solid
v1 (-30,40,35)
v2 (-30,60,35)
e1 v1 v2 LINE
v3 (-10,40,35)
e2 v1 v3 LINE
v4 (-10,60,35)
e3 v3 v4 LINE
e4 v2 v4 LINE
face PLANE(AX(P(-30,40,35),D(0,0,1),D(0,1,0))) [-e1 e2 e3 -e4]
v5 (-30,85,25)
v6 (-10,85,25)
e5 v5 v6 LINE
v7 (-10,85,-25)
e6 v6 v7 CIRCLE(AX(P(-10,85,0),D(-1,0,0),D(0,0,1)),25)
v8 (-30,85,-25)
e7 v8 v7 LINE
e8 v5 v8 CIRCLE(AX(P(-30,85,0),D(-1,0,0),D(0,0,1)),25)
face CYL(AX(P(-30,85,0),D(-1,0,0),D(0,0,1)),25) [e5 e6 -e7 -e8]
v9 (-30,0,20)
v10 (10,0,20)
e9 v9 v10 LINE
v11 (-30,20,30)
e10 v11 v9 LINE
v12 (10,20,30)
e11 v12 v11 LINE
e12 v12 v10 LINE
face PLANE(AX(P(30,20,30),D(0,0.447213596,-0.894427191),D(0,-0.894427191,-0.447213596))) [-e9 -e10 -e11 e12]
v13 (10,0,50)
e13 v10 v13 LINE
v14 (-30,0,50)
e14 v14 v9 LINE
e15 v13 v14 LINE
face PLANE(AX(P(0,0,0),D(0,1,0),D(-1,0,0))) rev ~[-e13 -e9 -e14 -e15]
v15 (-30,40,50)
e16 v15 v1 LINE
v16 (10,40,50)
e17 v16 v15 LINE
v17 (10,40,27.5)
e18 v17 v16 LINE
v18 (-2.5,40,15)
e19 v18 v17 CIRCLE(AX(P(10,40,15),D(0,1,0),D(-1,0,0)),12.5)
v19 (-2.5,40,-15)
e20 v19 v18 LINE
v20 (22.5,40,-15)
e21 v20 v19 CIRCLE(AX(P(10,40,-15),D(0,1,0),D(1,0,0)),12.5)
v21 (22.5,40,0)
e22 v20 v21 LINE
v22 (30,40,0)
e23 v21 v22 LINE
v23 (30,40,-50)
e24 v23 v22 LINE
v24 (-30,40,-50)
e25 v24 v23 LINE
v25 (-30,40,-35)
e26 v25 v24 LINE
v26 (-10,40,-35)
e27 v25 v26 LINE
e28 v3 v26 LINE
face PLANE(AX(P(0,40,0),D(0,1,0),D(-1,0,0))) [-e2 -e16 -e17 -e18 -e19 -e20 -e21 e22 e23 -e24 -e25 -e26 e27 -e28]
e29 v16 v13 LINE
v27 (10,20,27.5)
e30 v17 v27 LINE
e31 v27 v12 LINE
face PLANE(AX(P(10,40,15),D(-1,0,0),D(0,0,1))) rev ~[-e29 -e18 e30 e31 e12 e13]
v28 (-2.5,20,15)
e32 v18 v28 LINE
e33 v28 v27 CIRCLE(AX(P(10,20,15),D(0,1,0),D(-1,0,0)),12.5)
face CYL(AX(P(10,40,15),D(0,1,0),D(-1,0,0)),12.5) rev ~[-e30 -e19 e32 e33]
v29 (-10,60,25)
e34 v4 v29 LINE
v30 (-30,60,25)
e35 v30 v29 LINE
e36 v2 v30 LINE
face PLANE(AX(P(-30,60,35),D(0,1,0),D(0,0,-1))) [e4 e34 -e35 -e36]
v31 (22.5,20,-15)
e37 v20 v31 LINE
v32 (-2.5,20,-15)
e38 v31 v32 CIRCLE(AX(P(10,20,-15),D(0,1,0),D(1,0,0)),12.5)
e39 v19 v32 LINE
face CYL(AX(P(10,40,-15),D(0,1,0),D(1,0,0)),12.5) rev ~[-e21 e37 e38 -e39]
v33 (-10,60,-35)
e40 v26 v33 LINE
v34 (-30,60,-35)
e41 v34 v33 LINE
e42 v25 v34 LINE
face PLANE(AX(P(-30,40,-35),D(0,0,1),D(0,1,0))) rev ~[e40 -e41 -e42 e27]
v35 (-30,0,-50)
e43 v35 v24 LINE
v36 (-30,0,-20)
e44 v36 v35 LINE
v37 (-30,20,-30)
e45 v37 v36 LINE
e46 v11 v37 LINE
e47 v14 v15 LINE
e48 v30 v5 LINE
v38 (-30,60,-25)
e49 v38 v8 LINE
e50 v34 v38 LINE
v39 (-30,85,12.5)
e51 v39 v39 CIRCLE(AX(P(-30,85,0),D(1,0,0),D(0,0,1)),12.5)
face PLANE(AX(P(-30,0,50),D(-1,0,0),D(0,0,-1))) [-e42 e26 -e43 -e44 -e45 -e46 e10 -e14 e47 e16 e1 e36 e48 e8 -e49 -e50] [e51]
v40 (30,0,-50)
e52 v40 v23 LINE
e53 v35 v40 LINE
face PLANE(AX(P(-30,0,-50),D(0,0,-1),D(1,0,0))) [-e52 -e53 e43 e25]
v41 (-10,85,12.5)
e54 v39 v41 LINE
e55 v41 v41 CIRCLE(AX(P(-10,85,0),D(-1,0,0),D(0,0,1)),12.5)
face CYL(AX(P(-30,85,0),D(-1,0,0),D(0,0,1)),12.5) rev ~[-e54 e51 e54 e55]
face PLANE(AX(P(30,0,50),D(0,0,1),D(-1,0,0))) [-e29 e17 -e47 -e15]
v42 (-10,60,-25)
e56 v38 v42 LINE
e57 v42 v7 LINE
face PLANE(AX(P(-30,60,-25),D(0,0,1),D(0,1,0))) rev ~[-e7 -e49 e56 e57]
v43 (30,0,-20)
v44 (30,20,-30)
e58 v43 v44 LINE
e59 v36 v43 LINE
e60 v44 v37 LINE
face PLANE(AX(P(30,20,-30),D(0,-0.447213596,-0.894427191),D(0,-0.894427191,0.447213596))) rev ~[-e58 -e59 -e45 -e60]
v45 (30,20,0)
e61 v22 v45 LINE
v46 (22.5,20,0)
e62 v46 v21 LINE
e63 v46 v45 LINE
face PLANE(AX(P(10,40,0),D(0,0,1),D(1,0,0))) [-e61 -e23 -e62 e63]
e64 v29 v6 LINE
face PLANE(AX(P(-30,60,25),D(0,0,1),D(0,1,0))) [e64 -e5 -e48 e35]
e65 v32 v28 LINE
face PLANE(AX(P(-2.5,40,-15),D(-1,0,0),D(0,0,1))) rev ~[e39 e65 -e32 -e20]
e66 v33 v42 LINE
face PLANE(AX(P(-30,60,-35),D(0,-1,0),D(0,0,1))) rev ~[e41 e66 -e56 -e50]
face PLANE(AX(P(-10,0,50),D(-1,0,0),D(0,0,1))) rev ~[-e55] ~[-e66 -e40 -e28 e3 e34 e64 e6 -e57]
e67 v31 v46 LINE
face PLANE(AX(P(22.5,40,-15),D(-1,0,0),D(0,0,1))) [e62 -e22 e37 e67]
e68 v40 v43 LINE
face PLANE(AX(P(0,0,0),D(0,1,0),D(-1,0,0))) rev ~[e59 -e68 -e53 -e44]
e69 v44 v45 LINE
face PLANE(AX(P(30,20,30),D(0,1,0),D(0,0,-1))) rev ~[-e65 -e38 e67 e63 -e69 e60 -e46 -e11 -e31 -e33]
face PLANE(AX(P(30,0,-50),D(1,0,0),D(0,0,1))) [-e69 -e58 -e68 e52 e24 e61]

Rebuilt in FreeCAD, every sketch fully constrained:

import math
import FreeCAD as App
import Part
import Sketcher

V = App.Vector
Q = App.Units.Quantity

doc = App.newDocument("Part")
body = doc.addObject("PartDesign::Body", "Body")

# Sketch on XZ plane
sketch1 = body.newObject("Sketcher::SketchObject", "Sketch")
sketch1.AttachmentSupport = (doc.getObject("XZ_Plane"), [""])
sketch1.MapMode = "FlatFace"
sketch1.addGeometry([
    Part.LineSegment(V(-30, -50, 0), V(-30, 50, 0)),
    Part.LineSegment(V(-30, 50, 0), V(30, 50, 0)),
    Part.LineSegment(V(30, 50, 0), V(30, -50, 0)),
    Part.LineSegment(V(30, -50, 0), V(-30, -50, 0)),
], False)
sketch1.addConstraint([
    Sketcher.Constraint("Coincident", 0, 2, 1, 1),
    Sketcher.Constraint("Coincident", 1, 2, 2, 1),
    Sketcher.Constraint("Coincident", 2, 2, 3, 1),
    Sketcher.Constraint("Coincident", 3, 2, 0, 1),
    Sketcher.Constraint("Vertical", 0),
    Sketcher.Constraint("Horizontal", 1),
    Sketcher.Constraint("Vertical", 2),
    Sketcher.Constraint("Horizontal", 3),
    Sketcher.Constraint("Symmetric", 0, 2, 2, 2, -1, 1),
    Sketcher.Constraint("DistanceX", 1, 1, 1, 2, Q("60 mm")),
    Sketcher.Constraint("DistanceY", 0, 1, 0, 2, Q("100 mm")),
])
pad1 = body.newObject("PartDesign::Pad", "Pad")
pad1.Profile = sketch1
pad1.Length = 40
pad1.Reversed = True

# Sketch on YZ plane
sketch2 = body.newObject("Sketcher::SketchObject", "Sketch001")
sketch2.AttachmentSupport = (doc.getObject("YZ_Plane"), [""])
sketch2.MapMode = "FlatFace"
sketch2.AttachmentOffset = App.Placement(V(0, 0, 30), App.Rotation())
sketch2.addGeometry([
    Part.LineSegment(V(20, 30, 0), V(0, 20, 0)),
    Part.LineSegment(V(0, 20, 0), V(0, -20, 0)),
    Part.LineSegment(V(0, -20, 0), V(20, -30, 0)),
    Part.LineSegment(V(20, -30, 0), V(20, 30, 0)),
], False)
sketch2.addConstraint([
    Sketcher.Constraint("Coincident", 0, 2, 1, 1),
    Sketcher.Constraint("Coincident", 1, 2, 2, 1),
    Sketcher.Constraint("Coincident", 2, 2, 3, 1),
    Sketcher.Constraint("Coincident", 3, 2, 0, 1),
    Sketcher.Constraint("Vertical", 1),
    Sketcher.Constraint("Vertical", 3),
    Sketcher.Constraint("Symmetric", 0, 2, 1, 2, -1, 1),
    Sketcher.Constraint("Equal", 0, 2),
    Sketcher.Constraint("DistanceY", 1, 2, 1, 1, Q("40 mm")),
    Sketcher.Constraint("DistanceY", 3, 1, 3, 2, Q("60 mm")),
    Sketcher.Constraint("DistanceX", -1, 1, 2, 2, Q("20 mm")),
])
pocket1 = body.newObject("PartDesign::Pocket", "Pocket")
pocket1.Profile = sketch2
pocket1.Length = 160
pocket1.Midplane = True

# Sketch on XZ plane
sketch3 = body.newObject("Sketcher::SketchObject", "Sketch002")
sketch3.AttachmentSupport = (doc.getObject("XZ_Plane"), [""])
sketch3.MapMode = "FlatFace"
sketch3.AttachmentOffset = App.Placement(V(0, 0, -40), App.Rotation())
sketch3.addGeometry([
    Part.LineSegment(V(22.5, 15, 0), V(22.5, -15, 0)),
    Part.ArcOfCircle(Part.Circle(V(10, -15, 0), V(0, 0, 1), 12.5), math.radians(180), math.radians(360)),
    Part.LineSegment(V(-2.5, -15, 0), V(-2.5, 15, 0)),
    Part.ArcOfCircle(Part.Circle(V(10, 15, 0), V(0, 0, 1), 12.5), math.radians(0), math.radians(180)),
], False)
sketch3.addConstraint([
    Sketcher.Constraint("Tangent", 0, 2, 1, 2),
    Sketcher.Constraint("Tangent", 1, 1, 2, 1),
    Sketcher.Constraint("Tangent", 2, 2, 3, 2),
    Sketcher.Constraint("Tangent", 3, 1, 0, 1),
    Sketcher.Constraint("Vertical", 0),
    Sketcher.Constraint("Vertical", 2),
    Sketcher.Constraint("Radius", 1, Q("12.5 mm")),
    Sketcher.Constraint("DistanceY", 0, 2, 0, 1, Q("30 mm")),
    Sketcher.Constraint("DistanceX", -1, 1, 1, 3, Q("10 mm")),
    Sketcher.Constraint("DistanceY", 1, 3, -1, 1, Q("15 mm")),
])
pocket2 = body.newObject("PartDesign::Pocket", "Pocket001")
pocket2.Profile = sketch3
pocket2.Length = 20
pocket2.Reversed = True

# Sketch on YZ plane
sketch4 = body.newObject("Sketcher::SketchObject", "Sketch003")
sketch4.AttachmentSupport = (doc.getObject("YZ_Plane"), [""])
sketch4.MapMode = "FlatFace"
sketch4.AttachmentOffset = App.Placement(V(0, 0, -30), App.Rotation())
sketch4.addGeometry([
    Part.LineSegment(V(40, -35, 0), V(40, 35, 0)),  # 0
    Part.LineSegment(V(40, 35, 0), V(60, 35, 0)),  # 1
    Part.LineSegment(V(60, 35, 0), V(60, 25, 0)),  # 2
    Part.LineSegment(V(60, 25, 0), V(85, 25, 0)),  # 3
    Part.ArcOfCircle(Part.Circle(V(85, 0, 0), V(0, 0, 1), 25), math.radians(-90), math.radians(90)),  # 4
    Part.LineSegment(V(85, -25, 0), V(60, -25, 0)),  # 5
    Part.LineSegment(V(60, -25, 0), V(60, -35, 0)),  # 6
    Part.LineSegment(V(60, -35, 0), V(40, -35, 0)),  # 7
    Part.Circle(V(85, 0, 0), V(0, 0, 1), 12.5),  # 8
], False)
sketch4.addConstraint([
    Sketcher.Constraint("Coincident", 0, 2, 1, 1),
    Sketcher.Constraint("Coincident", 1, 2, 2, 1),
    Sketcher.Constraint("Coincident", 2, 2, 3, 1),
    Sketcher.Constraint("Tangent", 3, 2, 4, 2),
    Sketcher.Constraint("Tangent", 4, 1, 5, 1),
    Sketcher.Constraint("Coincident", 5, 2, 6, 1),
    Sketcher.Constraint("Coincident", 6, 2, 7, 1),
    Sketcher.Constraint("Coincident", 7, 2, 0, 1),
    Sketcher.Constraint("Vertical", 0),
    Sketcher.Constraint("Horizontal", 1),
    Sketcher.Constraint("Vertical", 2),
    Sketcher.Constraint("Horizontal", 3),
    Sketcher.Constraint("Horizontal", 5),
    Sketcher.Constraint("Vertical", 6),
    Sketcher.Constraint("Horizontal", 7),
    Sketcher.Constraint("Coincident", 8, 3, 4, 3),
    Sketcher.Constraint("Symmetric", 2, 2, 5, 2, -1),
    Sketcher.Constraint("Equal", 2, 6),
    Sketcher.Constraint("Diameter", 8, Q("25 mm")),
    Sketcher.Constraint("Radius", 4, Q("25 mm")),
    Sketcher.Constraint("DistanceX", 1, 1, 1, 2, Q("20 mm")),
    Sketcher.Constraint("DistanceX", 3, 1, 3, 2, Q("25 mm")),
    Sketcher.Constraint("DistanceY", 0, 1, 0, 2, Q("70 mm")),
    Sketcher.Constraint("DistanceX", -1, 1, 4, 3, Q("85 mm")),
])
pad2 = body.newObject("PartDesign::Pad", "Pad001")
pad2.Profile = sketch4
pad2.Length = 20

# Sketch on XZ plane
sketch5 = body.newObject("Sketcher::SketchObject", "Sketch004")
sketch5.AttachmentSupport = (doc.getObject("XZ_Plane"), [""])
sketch5.MapMode = "FlatFace"
sketch5.AttachmentOffset = App.Placement(V(0, 0, -40), App.Rotation())
sketch5.addGeometry([
    Part.LineSegment(V(10, 0, 0), V(10, 69.4027, 0)),
    Part.LineSegment(V(10, 69.4027, 0), V(54.89, 69.4027, 0)),
    Part.LineSegment(V(54.89, 69.4027, 0), V(54.89, 0, 0)),
    Part.LineSegment(V(54.89, 0, 0), V(10, 0, 0)),
], False)
sketch5.addConstraint([
    Sketcher.Constraint("Coincident", 0, 2, 1, 1),
    Sketcher.Constraint("Coincident", 1, 2, 2, 1),
    Sketcher.Constraint("Coincident", 2, 2, 3, 1),
    Sketcher.Constraint("Coincident", 3, 2, 0, 1),
    Sketcher.Constraint("Vertical", 0),
    Sketcher.Constraint("Horizontal", 1),
    Sketcher.Constraint("Vertical", 2),
    Sketcher.Constraint("Horizontal", 3),
    Sketcher.Constraint("PointOnObject", 2, 2, -1),
    Sketcher.Constraint("DistanceX", -1, 1, 0, 2, Q("10 mm")),
    Sketcher.Constraint("DistanceX", 1, 1, 1, 2, Q("44.89 mm")),
    Sketcher.Constraint("DistanceY", 0, 1, 0, 2, Q("69.4027 mm")),
])
pocket3 = body.newObject("PartDesign::Pocket", "Pocket002")
pocket3.Profile = sketch5
pocket3.Length = 80
pocket3.Reversed = True

doc.recompute()
